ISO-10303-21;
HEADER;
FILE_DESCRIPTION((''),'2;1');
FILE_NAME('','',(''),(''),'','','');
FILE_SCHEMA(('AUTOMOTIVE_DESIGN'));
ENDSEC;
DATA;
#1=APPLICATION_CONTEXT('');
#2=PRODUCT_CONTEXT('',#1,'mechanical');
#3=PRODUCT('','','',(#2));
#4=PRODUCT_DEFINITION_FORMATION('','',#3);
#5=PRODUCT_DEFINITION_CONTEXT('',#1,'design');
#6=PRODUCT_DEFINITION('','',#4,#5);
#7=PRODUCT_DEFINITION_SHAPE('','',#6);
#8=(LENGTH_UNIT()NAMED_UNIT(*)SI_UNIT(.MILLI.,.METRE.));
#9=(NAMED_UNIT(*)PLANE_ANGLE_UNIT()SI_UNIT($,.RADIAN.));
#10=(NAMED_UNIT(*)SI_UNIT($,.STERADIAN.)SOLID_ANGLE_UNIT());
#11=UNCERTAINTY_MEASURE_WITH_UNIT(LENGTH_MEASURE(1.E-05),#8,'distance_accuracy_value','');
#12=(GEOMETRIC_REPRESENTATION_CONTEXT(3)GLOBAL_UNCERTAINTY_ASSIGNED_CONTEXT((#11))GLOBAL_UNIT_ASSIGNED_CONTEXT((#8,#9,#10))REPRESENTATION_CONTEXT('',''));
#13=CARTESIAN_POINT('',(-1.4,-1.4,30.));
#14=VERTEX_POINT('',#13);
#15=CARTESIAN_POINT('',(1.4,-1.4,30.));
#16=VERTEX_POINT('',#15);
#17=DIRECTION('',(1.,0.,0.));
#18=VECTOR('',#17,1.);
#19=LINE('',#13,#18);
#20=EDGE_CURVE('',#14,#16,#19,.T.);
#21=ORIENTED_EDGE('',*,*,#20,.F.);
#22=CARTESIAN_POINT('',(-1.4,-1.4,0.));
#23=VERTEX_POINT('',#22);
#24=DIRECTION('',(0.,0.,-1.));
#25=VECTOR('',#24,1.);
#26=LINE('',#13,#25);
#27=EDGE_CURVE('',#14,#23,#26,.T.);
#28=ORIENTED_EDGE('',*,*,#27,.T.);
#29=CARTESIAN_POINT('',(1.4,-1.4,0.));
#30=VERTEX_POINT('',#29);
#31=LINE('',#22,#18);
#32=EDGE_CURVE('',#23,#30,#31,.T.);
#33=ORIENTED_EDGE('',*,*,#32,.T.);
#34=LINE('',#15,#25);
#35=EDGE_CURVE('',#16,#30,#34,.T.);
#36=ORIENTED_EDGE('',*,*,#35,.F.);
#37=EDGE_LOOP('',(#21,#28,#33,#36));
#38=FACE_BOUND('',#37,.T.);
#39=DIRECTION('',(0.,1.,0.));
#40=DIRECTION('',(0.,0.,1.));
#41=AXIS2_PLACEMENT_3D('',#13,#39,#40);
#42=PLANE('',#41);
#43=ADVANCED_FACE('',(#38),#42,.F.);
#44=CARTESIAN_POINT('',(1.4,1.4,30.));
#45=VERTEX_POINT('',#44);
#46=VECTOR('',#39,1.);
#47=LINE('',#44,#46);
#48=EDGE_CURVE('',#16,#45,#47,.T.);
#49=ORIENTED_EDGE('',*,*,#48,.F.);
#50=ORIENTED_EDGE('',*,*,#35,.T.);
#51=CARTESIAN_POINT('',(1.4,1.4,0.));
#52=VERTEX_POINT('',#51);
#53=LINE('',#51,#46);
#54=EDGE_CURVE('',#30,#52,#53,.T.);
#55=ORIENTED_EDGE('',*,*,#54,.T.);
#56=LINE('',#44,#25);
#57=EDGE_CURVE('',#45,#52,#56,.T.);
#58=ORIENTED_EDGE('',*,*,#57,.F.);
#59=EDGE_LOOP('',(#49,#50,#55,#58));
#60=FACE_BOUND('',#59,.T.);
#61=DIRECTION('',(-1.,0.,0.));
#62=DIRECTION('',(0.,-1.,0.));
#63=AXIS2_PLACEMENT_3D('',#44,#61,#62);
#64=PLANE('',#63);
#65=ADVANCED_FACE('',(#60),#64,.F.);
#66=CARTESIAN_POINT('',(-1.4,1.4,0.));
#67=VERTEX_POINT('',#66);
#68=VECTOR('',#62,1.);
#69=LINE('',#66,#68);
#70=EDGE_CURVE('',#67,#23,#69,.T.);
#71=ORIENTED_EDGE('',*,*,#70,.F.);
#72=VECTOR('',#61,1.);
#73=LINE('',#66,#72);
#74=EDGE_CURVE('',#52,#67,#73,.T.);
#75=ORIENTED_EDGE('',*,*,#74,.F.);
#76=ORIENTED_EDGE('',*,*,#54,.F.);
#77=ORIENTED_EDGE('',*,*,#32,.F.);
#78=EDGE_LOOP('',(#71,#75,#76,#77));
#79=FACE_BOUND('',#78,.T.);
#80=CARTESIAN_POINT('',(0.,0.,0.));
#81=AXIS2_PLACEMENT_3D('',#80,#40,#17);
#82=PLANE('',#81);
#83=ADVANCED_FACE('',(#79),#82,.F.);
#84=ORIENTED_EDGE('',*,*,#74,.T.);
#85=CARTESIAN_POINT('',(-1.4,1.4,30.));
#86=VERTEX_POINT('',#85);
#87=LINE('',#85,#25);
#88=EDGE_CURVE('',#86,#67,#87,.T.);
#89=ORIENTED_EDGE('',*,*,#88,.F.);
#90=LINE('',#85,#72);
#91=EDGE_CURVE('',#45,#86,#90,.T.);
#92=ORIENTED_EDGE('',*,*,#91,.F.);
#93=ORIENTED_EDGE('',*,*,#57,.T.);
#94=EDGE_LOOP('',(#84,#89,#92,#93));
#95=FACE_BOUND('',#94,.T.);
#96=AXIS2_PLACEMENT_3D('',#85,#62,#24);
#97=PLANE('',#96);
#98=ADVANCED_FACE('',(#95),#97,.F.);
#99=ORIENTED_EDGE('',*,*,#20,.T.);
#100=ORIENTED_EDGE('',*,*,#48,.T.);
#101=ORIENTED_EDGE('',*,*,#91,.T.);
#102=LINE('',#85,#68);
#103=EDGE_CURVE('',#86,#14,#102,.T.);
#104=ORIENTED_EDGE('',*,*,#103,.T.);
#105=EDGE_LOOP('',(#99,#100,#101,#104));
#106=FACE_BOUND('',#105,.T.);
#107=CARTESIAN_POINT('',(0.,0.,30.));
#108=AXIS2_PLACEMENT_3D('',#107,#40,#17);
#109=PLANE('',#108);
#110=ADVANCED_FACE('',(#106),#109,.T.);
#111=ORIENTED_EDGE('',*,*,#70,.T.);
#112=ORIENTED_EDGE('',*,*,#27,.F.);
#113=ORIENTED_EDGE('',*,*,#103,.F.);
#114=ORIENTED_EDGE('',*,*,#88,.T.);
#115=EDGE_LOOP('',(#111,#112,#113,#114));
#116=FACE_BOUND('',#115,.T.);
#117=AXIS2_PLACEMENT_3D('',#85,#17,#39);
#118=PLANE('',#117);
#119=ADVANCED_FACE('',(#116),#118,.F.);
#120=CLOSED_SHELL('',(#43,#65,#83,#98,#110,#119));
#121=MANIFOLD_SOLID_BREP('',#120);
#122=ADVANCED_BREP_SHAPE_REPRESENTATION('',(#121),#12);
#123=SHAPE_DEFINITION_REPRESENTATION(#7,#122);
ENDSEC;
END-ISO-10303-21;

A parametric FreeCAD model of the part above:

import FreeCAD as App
import Part
import Sketcher

V = App.Vector
Q = App.Units.Quantity


def add_polygon(sketch, points):
    """Adds a closed chain of lines whose ends are joined by coincident constraints."""
    first, n = sketch.GeometryCount, len(points)
    for a, b in zip(points, points[1:] + points[:1]):
        sketch.addGeometry(Part.LineSegment(App.Vector(*a, 0), App.Vector(*b, 0)), False)
    for i in range(n):
        sketch.addConstraint(Sketcher.Constraint("Coincident", first + i, 2, first + (i + 1) % n, 1))

doc = App.newDocument("Part")
body = doc.addObject("PartDesign::Body", "Body")

sketch1 = body.newObject("Sketcher::SketchObject", "Sketch")
sketch1.AttachmentSupport = (doc.getObject("XY_Plane"), [""])
sketch1.MapMode = "FlatFace"
add_polygon(sketch1, [(-1.4, 1.4), (-1.4, -1.4), (1.4, -1.4), (1.4, 1.4)])
sketch1.addConstraint(Sketcher.Constraint("Vertical", 0))
sketch1.addConstraint(Sketcher.Constraint("Horizontal", 1))
sketch1.addConstraint(Sketcher.Constraint("Vertical", 2))
sketch1.addConstraint(Sketcher.Constraint("Horizontal", 3))
sketch1.addConstraint(Sketcher.Constraint("Symmetric", 0, 2, 2, 2, -1, 1))
sketch1.addConstraint(Sketcher.Constraint("Equal", 3, 0))
sketch1.addConstraint(Sketcher.Constraint("DistanceX", 1, 1, 1, 2, Q("2.8 mm")))
pad1 = body.newObject("PartDesign::Pad", "Pad")
pad1.Profile = sketch1
pad1.Length = 30

doc.recompute()
